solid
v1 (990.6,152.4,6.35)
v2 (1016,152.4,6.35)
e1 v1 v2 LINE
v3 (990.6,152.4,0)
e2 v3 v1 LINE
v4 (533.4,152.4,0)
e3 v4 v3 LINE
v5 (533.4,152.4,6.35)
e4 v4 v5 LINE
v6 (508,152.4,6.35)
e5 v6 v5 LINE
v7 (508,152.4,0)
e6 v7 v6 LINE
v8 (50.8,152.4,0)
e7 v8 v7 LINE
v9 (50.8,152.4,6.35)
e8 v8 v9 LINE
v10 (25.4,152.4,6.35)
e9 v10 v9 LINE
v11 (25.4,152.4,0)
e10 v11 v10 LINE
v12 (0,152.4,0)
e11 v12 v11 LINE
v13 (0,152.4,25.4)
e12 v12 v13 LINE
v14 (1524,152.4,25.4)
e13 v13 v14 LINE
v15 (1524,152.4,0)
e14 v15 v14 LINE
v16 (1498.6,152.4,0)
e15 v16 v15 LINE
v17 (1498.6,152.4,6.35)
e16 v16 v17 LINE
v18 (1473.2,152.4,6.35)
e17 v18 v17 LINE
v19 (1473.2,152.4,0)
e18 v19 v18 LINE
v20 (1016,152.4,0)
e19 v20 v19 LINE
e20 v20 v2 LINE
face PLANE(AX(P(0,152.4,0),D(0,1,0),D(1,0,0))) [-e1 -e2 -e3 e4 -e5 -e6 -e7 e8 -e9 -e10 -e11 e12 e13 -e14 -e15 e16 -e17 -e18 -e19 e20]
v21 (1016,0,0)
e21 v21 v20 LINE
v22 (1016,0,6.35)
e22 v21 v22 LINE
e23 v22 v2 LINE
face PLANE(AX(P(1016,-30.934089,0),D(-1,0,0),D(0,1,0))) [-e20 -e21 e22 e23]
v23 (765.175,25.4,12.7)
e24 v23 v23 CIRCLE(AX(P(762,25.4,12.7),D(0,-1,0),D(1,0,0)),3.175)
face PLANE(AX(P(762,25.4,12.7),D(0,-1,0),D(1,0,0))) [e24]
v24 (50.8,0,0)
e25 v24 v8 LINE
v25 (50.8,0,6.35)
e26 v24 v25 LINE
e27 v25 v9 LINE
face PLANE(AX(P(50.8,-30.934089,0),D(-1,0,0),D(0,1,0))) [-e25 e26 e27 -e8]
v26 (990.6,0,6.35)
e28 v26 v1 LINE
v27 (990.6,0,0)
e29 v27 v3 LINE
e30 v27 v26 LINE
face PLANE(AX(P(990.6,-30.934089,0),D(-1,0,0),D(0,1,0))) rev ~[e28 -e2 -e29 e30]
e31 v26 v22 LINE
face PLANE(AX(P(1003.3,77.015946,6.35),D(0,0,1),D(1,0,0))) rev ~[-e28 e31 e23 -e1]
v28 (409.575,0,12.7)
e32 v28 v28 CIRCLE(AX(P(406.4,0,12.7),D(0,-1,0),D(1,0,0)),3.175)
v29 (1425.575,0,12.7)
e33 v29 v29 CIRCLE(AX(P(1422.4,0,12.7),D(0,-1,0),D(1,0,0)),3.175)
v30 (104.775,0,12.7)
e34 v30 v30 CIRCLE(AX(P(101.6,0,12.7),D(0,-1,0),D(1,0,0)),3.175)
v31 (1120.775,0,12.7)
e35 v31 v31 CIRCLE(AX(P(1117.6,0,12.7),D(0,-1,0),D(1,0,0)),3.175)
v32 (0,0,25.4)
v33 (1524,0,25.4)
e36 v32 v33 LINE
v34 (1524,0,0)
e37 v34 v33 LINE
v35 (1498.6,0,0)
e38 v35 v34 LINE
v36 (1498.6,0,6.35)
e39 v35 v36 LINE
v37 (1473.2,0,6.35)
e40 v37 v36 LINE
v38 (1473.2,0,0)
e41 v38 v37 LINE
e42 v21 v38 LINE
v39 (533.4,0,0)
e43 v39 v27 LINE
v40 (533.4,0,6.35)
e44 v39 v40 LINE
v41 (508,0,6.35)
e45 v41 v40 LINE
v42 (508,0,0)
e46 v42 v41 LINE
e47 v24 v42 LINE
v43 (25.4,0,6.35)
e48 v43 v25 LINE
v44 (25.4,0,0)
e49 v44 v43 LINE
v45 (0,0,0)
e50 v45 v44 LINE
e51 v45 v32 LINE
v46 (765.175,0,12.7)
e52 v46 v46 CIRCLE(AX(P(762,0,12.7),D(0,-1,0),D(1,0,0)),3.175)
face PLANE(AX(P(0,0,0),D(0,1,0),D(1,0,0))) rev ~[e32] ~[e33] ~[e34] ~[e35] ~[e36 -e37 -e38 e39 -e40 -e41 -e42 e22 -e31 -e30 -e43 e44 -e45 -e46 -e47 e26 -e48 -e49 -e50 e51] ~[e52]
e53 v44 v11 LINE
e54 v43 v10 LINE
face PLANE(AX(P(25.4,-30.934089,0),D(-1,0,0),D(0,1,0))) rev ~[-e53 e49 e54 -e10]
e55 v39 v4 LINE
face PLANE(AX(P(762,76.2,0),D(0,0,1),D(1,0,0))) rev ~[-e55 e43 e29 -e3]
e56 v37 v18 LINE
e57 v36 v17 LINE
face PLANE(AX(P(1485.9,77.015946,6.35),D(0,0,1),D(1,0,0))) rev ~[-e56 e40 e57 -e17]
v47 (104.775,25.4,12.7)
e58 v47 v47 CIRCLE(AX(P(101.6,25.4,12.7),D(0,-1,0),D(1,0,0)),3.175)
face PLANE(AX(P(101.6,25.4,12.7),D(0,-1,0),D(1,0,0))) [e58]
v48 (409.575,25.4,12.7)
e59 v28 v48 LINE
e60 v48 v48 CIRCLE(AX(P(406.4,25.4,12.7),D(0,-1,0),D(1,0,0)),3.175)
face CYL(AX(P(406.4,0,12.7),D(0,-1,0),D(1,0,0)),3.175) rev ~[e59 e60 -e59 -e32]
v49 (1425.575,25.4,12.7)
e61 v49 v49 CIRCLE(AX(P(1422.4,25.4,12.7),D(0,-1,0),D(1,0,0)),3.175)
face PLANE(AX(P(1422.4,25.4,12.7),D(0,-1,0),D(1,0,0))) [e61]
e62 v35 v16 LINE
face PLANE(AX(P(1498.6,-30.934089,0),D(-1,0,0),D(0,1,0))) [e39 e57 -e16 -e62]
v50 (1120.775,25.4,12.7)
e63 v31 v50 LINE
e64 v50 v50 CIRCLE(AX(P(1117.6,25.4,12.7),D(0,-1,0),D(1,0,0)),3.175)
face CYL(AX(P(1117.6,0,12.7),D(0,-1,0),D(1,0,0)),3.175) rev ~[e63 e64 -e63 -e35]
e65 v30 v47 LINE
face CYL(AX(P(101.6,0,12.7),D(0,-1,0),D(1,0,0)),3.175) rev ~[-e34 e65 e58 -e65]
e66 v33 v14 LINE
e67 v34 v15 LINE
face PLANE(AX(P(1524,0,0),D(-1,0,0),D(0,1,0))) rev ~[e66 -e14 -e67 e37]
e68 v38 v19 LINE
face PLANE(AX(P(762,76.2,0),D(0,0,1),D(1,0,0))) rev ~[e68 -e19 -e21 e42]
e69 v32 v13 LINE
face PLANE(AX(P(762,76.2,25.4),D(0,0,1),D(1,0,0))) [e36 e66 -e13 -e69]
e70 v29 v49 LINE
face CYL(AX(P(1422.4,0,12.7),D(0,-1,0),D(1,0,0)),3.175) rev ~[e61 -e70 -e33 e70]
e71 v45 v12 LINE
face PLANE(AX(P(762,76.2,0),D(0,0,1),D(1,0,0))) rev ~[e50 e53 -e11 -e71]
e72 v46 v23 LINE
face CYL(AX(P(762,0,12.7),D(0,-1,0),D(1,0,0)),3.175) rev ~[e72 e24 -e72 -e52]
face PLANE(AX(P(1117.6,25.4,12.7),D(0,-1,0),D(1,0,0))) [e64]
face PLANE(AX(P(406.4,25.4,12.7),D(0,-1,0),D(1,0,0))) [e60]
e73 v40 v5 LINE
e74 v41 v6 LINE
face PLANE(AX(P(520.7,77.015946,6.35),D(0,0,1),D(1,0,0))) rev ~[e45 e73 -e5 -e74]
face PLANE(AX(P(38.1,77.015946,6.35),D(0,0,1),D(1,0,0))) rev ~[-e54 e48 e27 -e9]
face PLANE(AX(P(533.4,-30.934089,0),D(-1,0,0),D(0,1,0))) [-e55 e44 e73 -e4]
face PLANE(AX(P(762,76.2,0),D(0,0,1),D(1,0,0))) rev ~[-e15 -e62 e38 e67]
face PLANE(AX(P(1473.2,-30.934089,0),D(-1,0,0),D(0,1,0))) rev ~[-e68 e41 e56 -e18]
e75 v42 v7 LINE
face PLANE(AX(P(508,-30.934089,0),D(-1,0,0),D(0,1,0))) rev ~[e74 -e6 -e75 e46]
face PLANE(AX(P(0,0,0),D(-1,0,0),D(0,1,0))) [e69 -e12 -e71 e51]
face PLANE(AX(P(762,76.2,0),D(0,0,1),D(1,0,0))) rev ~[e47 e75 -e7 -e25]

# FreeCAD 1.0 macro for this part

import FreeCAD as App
import Part
import Sketcher
Q = App.Units.Quantity

doc = App.newDocument("Part")
body = doc.addObject("PartDesign::Body", "Body")

sketch1 = body.newObject("Sketcher::SketchObject", "Sketch")
sketch1.AttachmentSupport = (doc.getObject("XY_Plane"), [""])
sketch1.MapMode = "FlatFace"
sketch1.addGeometry([
    Part.LineSegment(App.Vector(0, 152, 0), App.Vector(0, 0, 0)),
    Part.LineSegment(App.Vector(0, 0, 0), App.Vector(1524, 0, 0)),
    Part.LineSegment(App.Vector(1524, 0, 0), App.Vector(1524, 152, 0)),
    Part.LineSegment(App.Vector(1524, 152, 0), App.Vector(0, 152, 0)),
], False)
sketch1.addConstraint([
    Sketcher.Constraint("Coincident", 0, 2, 1, 1),
    Sketcher.Constraint("Coincident", 1, 2, 2, 1),
    Sketcher.Constraint("Coincident", 2, 2, 3, 1),
    Sketcher.Constraint("Coincident", 3, 2, 0, 1),
    Sketcher.Constraint("Vertical", 0),
    Sketcher.Constraint("Horizontal", 1),
    Sketcher.Constraint("Vertical", 2),
    Sketcher.Constraint("Horizontal", 3),
    Sketcher.Constraint("Coincident", 0, 2, -1, 1),
    Sketcher.Constraint("DistanceX", 1, 1, 1, 2, Q("60 in")),
    Sketcher.Constraint("DistanceY", 0, 2, 0, 1, Q("6 in")),
])
pad1 = body.newObject("PartDesign::Pad", "Pad")
pad1.Profile = sketch1
pad1.Length = Q("1 in")

sketch2 = body.newObject("Sketcher::SketchObject", "Sketch001")
sketch2.AttachmentSupport = (doc.getObject("XY_Plane"), [""])
sketch2.MapMode = "FlatFace"
sketch2.addGeometry([
    Part.LineSegment(App.Vector(25, 185, 0), App.Vector(25, -31, 0)),
    Part.LineSegment(App.Vector(25, -31, 0), App.Vector(51, -31, 0)),
    Part.LineSegment(App.Vector(51, -31, 0), App.Vector(51, 185, 0)),
    Part.LineSegment(App.Vector(51, 185, 0), App.Vector(25, 185, 0)),
    Part.LineSegment(App.Vector(508, 185, 0), App.Vector(508, -31, 0)),
    Part.LineSegment(App.Vector(508, -31, 0), App.Vector(533, -31, 0)),
    Part.LineSegment(App.Vector(533, -31, 0), App.Vector(533, 185, 0)),
    Part.LineSegment(App.Vector(533, 185, 0), App.Vector(508, 185, 0)),
    Part.LineSegment(App.Vector(991, 185, 0), App.Vector(991, -31, 0)),
    Part.LineSegment(App.Vector(991, -31, 0), App.Vector(1016, -31, 0)),
    Part.LineSegment(App.Vector(1016, -31, 0), App.Vector(1016, 185, 0)),
    Part.LineSegment(App.Vector(1016, 185, 0), App.Vector(991, 185, 0)),
    Part.LineSegment(App.Vector(1473, 185, 0), App.Vector(1473, -31, 0)),
    Part.LineSegment(App.Vector(1473, -31, 0), App.Vector(1499, -31, 0)),
    Part.LineSegment(App.Vector(1499, -31, 0), App.Vector(1499, 185, 0)),
    Part.LineSegment(App.Vector(1499, 185, 0), App.Vector(1473, 185, 0)),
], False)
sketch2.addConstraint([
    Sketcher.Constraint("Coincident", 0, 2, 1, 1),
    Sketcher.Constraint("Coincident", 1, 2, 2, 1),
    Sketcher.Constraint("Coincident", 2, 2, 3, 1),
    Sketcher.Constraint("Coincident", 3, 2, 0, 1),
    Sketcher.Constraint("Coincident", 4, 2, 5, 1),
    Sketcher.Constraint("Coincident", 5, 2, 6, 1),
    Sketcher.Constraint("Coincident", 6, 2, 7, 1),
    Sketcher.Constraint("Coincident", 7, 2, 4, 1),
    Sketcher.Constraint("Coincident", 8, 2, 9, 1),
    Sketcher.Constraint("Coincident", 9, 2, 10, 1),
    Sketcher.Constraint("Coincident", 10, 2, 11, 1),
    Sketcher.Constraint("Coincident", 11, 2, 8, 1),
    Sketcher.Constraint("Coincident", 12, 2, 13, 1),
    Sketcher.Constraint("Coincident", 13, 2, 14, 1),
    Sketcher.Constraint("Coincident", 14, 2, 15, 1),
    Sketcher.Constraint("Coincident", 15, 2, 12, 1),
    Sketcher.Constraint("Vertical", 0),
    Sketcher.Constraint("Horizontal", 1),
    Sketcher.Constraint("Vertical", 2),
    Sketcher.Constraint("Horizontal", 3),
    Sketcher.Constraint("Vertical", 4),
    Sketcher.Constraint("Horizontal", 5),
    Sketcher.Constraint("Vertical", 6),
    Sketcher.Constraint("Horizontal", 7),
    Sketcher.Constraint("Vertical", 8),
    Sketcher.Constraint("Horizontal", 9),
    Sketcher.Constraint("Vertical", 10),
    Sketcher.Constraint("Horizontal", 11),
    Sketcher.Constraint("Vertical", 12),
    Sketcher.Constraint("Horizontal", 13),
    Sketcher.Constraint("Vertical", 14),
    Sketcher.Constraint("Horizontal", 15),
    Sketcher.Constraint("Horizontal", 1, 2, 4, 2),
    Sketcher.Constraint("Horizontal", 3, 2, 6, 2),
    Sketcher.Constraint("Horizontal", 5, 2, 8, 2),
    Sketcher.Constraint("Horizontal", 7, 2, 10, 2),
    Sketcher.Constraint("Horizontal", 9, 2, 12, 2),
    Sketcher.Constraint("Horizontal", 11, 2, 14, 2),
    Sketcher.Constraint("Equal", 3, 5),
    Sketcher.Constraint("Equal", 7, 9),
    Sketcher.Constraint("Equal", 11, 13),
    Sketcher.Constraint("DistanceX", 1, 1, 1, 2, Q("1 in")),
    Sketcher.Constraint("DistanceX", -1, 1, 0, 2, Q("1 in")),
    Sketcher.Constraint("DistanceX", -1, 1, 4, 2, Q("20 in")),
    Sketcher.Constraint("DistanceX", -1, 1, 8, 2, Q("39 in")),
    Sketcher.Constraint("DistanceX", -1, 1, 12, 2, Q("58 in")),
    Sketcher.Constraint("DistanceY", 0, 2, 0, 1, Q("215.900069 mm")),
    Sketcher.Constraint("DistanceY", 0, 2, -1, 1, Q("30.934089 mm")),
])
pocket1 = body.newObject("PartDesign::Pocket", "Pocket")
pocket1.Profile = sketch2
pocket1.Length = Q("0.25 in")
pocket1.Reversed = True

sketch3 = body.newObject("Sketcher::SketchObject", "Sketch002")
sketch3.AttachmentSupport = (doc.getObject("XZ_Plane"), [""])
sketch3.MapMode = "FlatFace"
sketch3.addGeometry([
    Part.Circle(App.Vector(101.6, 12.7, 0), App.Vector(0, 0, 1), 3.2),
    Part.Circle(App.Vector(406.4, 12.7, 0), App.Vector(0, 0, 1), 3.2),
    Part.Circle(App.Vector(762, 12.7, 0), App.Vector(0, 0, 1), 3.2),
    Part.Circle(App.Vector(1117.6, 12.7, 0), App.Vector(0, 0, 1), 3.2),
    Part.Circle(App.Vector(1422.4, 12.7, 0), App.Vector(0, 0, 1), 3.2),
], False)
sketch3.addConstraint([
    Sketcher.Constraint("Equal", 0, 1),
    Sketcher.Constraint("Equal", 1, 2),
    Sketcher.Constraint("Equal", 2, 3),
    Sketcher.Constraint("Equal", 3, 4),
    Sketcher.Constraint("Horizontal", 0, 3, 1, 3),
    Sketcher.Constraint("Horizontal", 1, 3, 2, 3),
    Sketcher.Constraint("Horizontal", 2, 3, 3, 3),
    Sketcher.Constraint("Horizontal", 3, 3, 4, 3),
    Sketcher.Constraint("Diameter", 0, Q("0.25 in")),
    Sketcher.Constraint("DistanceX", -1, 1, 0, 3, Q("4 in")),
    Sketcher.Constraint("DistanceX", -1, 1, 1, 3, Q("16 in")),
    Sketcher.Constraint("DistanceX", -1, 1, 2, 3, Q("30 in")),
    Sketcher.Constraint("DistanceX", -1, 1, 3, 3, Q("44 in")),
    Sketcher.Constraint("DistanceX", -1, 1, 4, 3, Q("56 in")),
    Sketcher.Constraint("DistanceY", -1, 1, 0, 3, Q("0.5 in")),
])
pocket2 = body.newObject("PartDesign::Pocket", "Pocket001")
pocket2.Profile = sketch3
pocket2.Length = Q("1 in")

doc.recompute()
